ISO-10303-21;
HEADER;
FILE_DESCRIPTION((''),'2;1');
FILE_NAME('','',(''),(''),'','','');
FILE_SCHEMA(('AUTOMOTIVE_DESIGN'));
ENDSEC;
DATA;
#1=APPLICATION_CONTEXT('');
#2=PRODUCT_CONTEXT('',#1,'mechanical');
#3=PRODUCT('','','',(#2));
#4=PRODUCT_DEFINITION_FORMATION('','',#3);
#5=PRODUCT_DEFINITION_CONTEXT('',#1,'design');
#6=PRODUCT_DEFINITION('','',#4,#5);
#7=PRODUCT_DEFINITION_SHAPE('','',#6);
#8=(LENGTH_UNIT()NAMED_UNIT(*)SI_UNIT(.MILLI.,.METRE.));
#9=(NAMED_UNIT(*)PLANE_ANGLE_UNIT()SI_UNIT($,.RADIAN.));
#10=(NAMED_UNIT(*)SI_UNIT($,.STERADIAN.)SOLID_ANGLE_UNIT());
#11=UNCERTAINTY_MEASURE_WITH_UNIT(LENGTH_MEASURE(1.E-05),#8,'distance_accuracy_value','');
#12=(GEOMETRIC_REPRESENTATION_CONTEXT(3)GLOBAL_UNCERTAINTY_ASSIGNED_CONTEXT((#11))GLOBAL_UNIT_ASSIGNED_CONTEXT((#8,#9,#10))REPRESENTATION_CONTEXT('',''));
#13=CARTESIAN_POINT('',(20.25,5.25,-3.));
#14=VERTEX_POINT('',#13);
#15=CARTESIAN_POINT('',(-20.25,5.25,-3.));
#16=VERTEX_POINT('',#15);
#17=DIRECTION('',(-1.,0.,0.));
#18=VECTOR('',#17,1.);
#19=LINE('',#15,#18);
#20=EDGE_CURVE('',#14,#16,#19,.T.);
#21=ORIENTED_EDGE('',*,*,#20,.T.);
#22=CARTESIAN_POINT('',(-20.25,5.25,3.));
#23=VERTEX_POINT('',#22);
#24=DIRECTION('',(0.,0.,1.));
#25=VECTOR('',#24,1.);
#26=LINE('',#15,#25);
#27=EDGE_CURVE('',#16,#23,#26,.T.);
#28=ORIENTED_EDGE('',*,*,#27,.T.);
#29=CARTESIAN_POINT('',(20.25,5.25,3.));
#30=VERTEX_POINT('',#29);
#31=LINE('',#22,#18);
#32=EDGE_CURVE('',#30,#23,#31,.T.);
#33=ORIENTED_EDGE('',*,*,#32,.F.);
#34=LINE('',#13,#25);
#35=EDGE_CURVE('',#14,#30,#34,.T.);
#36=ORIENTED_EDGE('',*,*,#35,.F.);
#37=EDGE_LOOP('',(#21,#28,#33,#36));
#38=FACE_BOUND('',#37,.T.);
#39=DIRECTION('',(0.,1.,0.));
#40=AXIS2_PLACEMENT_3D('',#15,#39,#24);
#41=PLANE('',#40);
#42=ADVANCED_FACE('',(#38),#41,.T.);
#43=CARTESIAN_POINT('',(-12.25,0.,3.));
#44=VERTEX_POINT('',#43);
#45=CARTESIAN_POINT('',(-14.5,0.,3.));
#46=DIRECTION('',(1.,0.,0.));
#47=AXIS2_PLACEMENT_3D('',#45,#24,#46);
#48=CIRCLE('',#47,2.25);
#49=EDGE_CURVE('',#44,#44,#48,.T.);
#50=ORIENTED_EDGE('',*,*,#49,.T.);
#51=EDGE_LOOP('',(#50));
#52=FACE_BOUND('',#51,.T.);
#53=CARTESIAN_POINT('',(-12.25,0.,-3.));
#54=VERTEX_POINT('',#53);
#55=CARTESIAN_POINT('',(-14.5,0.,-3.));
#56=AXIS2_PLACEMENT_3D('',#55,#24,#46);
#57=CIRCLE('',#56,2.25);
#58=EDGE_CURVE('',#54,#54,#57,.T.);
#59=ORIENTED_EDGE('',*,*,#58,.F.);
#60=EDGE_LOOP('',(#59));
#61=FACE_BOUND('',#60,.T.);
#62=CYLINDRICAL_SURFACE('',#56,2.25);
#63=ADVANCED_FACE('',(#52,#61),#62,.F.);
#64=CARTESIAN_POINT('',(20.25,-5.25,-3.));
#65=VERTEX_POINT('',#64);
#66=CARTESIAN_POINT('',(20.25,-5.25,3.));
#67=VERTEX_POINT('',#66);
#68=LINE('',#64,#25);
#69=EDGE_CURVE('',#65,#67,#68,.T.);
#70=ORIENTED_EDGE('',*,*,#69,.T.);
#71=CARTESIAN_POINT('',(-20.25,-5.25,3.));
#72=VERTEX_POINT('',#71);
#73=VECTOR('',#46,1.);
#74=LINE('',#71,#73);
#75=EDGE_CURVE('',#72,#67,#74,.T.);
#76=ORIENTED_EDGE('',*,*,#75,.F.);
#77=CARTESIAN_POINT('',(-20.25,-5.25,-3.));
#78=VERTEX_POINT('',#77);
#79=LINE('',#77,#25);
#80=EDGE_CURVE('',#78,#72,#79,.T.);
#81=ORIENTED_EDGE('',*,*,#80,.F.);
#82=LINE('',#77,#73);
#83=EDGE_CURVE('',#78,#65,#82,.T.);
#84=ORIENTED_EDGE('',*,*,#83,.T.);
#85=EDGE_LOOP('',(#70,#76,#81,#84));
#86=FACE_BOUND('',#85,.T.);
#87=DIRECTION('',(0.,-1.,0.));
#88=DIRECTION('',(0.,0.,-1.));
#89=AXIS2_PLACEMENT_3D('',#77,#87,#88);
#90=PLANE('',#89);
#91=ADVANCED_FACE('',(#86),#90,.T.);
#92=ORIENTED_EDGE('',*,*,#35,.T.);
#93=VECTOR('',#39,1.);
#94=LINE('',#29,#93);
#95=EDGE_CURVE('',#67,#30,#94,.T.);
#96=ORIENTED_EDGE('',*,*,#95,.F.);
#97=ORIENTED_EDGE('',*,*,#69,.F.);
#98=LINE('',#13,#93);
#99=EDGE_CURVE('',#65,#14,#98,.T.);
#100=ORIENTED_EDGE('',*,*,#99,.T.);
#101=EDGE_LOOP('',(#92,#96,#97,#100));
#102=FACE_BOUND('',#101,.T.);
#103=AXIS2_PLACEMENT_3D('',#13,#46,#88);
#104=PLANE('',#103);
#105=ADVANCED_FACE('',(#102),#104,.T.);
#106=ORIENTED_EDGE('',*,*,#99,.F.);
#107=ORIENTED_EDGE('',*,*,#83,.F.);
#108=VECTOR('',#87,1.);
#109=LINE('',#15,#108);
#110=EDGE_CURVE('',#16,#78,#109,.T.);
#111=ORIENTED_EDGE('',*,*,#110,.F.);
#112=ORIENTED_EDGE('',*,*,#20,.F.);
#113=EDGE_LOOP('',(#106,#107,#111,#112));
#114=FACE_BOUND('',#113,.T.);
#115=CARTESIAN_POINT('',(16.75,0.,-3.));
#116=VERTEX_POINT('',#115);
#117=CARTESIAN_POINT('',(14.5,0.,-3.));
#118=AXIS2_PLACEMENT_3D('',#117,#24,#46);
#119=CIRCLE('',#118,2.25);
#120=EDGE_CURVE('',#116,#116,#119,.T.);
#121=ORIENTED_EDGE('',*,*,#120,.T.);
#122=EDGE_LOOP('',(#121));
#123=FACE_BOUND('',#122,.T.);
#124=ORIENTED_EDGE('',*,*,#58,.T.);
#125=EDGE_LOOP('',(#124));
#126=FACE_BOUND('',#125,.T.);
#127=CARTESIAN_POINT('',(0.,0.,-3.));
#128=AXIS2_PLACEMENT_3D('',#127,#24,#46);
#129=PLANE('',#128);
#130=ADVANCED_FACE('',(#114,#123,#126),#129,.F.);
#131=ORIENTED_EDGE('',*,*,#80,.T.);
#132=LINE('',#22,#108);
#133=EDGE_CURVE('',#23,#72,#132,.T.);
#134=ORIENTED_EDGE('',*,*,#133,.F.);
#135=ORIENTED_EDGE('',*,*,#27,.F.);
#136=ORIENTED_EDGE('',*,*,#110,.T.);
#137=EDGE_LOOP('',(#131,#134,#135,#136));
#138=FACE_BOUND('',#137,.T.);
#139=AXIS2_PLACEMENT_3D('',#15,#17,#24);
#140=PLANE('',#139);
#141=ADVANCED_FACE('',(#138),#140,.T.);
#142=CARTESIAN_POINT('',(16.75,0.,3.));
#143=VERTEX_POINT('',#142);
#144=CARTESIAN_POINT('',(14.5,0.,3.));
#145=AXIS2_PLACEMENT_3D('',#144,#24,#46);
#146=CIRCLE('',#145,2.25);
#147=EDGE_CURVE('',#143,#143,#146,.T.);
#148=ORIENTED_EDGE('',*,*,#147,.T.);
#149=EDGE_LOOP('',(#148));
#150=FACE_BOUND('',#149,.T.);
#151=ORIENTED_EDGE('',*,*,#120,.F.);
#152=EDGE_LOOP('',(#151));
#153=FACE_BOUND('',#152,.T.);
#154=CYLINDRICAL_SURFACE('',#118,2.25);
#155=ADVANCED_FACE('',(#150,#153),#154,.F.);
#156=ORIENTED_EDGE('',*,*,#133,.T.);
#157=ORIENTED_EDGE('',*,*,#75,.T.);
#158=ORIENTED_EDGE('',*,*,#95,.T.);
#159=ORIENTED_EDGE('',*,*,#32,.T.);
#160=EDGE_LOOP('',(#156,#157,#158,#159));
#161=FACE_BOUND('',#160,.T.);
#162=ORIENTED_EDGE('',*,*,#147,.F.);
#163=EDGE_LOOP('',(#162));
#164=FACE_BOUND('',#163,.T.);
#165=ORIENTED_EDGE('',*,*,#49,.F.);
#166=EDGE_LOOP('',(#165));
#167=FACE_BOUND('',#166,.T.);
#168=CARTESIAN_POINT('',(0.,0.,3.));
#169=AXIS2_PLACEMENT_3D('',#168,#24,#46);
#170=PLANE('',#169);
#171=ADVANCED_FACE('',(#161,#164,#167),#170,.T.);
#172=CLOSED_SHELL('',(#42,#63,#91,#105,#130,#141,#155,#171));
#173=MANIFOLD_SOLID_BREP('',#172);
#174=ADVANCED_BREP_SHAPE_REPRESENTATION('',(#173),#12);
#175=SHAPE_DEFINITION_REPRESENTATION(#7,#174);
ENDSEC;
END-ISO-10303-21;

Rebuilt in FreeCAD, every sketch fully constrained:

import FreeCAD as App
import Part
import Sketcher
from FreeCAD import Vector

doc = App.newDocument("Part")
params = doc.addObject("Spreadsheet::Sheet", "Params")
for row, (alias, value) in enumerate([
    ("sketch1_diameter", "4.5 mm"),
    ("sketch1_width", "40.5 mm"),
    ("sketch1_height", "10.5 mm"),
    ("pad1_length", "3 mm"),
    ("pad1_length2", "3 mm"),
], start=1):
    params.set(f"A{row}", alias)
    params.set(f"B{row}", "=" + value)
    params.setAlias(f"B{row}", alias)

body = doc.addObject("PartDesign::Body", "Body")

sketch1 = body.newObject("Sketcher::SketchObject", "Sketch")
sketch1.AttachmentSupport = (doc.getObject("XY_Plane"), [""])
sketch1.MapMode = "FlatFace"
sketch1.addGeometry([
    Part.LineSegment(Vector(-20.25, 5.25, 0), Vector(-20.25, -5.25, 0)),
    Part.LineSegment(Vector(-20.25, -5.25, 0), Vector(20.25, -5.25, 0)),
    Part.LineSegment(Vector(20.25, -5.25, 0), Vector(20.25, 5.25, 0)),
    Part.LineSegment(Vector(20.25, 5.25, 0), Vector(-20.25, 5.25, 0)),
    Part.Circle(Vector(-14.5, 0, 0), Vector(0, 0, 1), 2.25),
    Part.Circle(Vector(14.5, 0, 0), Vector(0, 0, 1), 2.25),
], False)
sketch1.addConstraint([
    Sketcher.Constraint("Coincident", 0, 2, 1, 1),
    Sketcher.Constraint("Coincident", 1, 2, 2, 1),
    Sketcher.Constraint("Coincident", 2, 2, 3, 1),
    Sketcher.Constraint("Coincident", 3, 2, 0, 1),
    Sketcher.Constraint("Vertical", 0),
    Sketcher.Constraint("Horizontal", 1),
    Sketcher.Constraint("Vertical", 2),
    Sketcher.Constraint("Horizontal", 3),
    Sketcher.Constraint("Equal", 4, 5),
    Sketcher.Constraint("Symmetric", 4, 3, 5, 3, -1, 1),
    Sketcher.Constraint("Symmetric", 0, 2, 2, 2, -1, 1),
    Sketcher.Constraint("PointOnObject", 4, 3, -1),
    Sketcher.Constraint("Diameter", 4, 4.5),
    Sketcher.Constraint("DistanceX", 1, 1, 1, 2, 40.5),
    Sketcher.Constraint("DistanceY", 0, 2, 0, 1, 10.5),
    Sketcher.Constraint("DistanceX", 4, 3, 5, 3, 29.0),
])
sketch1.setExpression("Constraints[12]", "Params.sketch1_diameter")
sketch1.setExpression("Constraints[13]", "Params.sketch1_width")
sketch1.setExpression("Constraints[14]", "Params.sketch1_height")
pad1 = body.newObject("PartDesign::Pad", "Pad")
pad1.Profile = sketch1
pad1.Type = "TwoLengths"
pad1.setExpression("Length", "Params.pad1_length")
pad1.setExpression("Length2", "Params.pad1_length2")

doc.recompute()
